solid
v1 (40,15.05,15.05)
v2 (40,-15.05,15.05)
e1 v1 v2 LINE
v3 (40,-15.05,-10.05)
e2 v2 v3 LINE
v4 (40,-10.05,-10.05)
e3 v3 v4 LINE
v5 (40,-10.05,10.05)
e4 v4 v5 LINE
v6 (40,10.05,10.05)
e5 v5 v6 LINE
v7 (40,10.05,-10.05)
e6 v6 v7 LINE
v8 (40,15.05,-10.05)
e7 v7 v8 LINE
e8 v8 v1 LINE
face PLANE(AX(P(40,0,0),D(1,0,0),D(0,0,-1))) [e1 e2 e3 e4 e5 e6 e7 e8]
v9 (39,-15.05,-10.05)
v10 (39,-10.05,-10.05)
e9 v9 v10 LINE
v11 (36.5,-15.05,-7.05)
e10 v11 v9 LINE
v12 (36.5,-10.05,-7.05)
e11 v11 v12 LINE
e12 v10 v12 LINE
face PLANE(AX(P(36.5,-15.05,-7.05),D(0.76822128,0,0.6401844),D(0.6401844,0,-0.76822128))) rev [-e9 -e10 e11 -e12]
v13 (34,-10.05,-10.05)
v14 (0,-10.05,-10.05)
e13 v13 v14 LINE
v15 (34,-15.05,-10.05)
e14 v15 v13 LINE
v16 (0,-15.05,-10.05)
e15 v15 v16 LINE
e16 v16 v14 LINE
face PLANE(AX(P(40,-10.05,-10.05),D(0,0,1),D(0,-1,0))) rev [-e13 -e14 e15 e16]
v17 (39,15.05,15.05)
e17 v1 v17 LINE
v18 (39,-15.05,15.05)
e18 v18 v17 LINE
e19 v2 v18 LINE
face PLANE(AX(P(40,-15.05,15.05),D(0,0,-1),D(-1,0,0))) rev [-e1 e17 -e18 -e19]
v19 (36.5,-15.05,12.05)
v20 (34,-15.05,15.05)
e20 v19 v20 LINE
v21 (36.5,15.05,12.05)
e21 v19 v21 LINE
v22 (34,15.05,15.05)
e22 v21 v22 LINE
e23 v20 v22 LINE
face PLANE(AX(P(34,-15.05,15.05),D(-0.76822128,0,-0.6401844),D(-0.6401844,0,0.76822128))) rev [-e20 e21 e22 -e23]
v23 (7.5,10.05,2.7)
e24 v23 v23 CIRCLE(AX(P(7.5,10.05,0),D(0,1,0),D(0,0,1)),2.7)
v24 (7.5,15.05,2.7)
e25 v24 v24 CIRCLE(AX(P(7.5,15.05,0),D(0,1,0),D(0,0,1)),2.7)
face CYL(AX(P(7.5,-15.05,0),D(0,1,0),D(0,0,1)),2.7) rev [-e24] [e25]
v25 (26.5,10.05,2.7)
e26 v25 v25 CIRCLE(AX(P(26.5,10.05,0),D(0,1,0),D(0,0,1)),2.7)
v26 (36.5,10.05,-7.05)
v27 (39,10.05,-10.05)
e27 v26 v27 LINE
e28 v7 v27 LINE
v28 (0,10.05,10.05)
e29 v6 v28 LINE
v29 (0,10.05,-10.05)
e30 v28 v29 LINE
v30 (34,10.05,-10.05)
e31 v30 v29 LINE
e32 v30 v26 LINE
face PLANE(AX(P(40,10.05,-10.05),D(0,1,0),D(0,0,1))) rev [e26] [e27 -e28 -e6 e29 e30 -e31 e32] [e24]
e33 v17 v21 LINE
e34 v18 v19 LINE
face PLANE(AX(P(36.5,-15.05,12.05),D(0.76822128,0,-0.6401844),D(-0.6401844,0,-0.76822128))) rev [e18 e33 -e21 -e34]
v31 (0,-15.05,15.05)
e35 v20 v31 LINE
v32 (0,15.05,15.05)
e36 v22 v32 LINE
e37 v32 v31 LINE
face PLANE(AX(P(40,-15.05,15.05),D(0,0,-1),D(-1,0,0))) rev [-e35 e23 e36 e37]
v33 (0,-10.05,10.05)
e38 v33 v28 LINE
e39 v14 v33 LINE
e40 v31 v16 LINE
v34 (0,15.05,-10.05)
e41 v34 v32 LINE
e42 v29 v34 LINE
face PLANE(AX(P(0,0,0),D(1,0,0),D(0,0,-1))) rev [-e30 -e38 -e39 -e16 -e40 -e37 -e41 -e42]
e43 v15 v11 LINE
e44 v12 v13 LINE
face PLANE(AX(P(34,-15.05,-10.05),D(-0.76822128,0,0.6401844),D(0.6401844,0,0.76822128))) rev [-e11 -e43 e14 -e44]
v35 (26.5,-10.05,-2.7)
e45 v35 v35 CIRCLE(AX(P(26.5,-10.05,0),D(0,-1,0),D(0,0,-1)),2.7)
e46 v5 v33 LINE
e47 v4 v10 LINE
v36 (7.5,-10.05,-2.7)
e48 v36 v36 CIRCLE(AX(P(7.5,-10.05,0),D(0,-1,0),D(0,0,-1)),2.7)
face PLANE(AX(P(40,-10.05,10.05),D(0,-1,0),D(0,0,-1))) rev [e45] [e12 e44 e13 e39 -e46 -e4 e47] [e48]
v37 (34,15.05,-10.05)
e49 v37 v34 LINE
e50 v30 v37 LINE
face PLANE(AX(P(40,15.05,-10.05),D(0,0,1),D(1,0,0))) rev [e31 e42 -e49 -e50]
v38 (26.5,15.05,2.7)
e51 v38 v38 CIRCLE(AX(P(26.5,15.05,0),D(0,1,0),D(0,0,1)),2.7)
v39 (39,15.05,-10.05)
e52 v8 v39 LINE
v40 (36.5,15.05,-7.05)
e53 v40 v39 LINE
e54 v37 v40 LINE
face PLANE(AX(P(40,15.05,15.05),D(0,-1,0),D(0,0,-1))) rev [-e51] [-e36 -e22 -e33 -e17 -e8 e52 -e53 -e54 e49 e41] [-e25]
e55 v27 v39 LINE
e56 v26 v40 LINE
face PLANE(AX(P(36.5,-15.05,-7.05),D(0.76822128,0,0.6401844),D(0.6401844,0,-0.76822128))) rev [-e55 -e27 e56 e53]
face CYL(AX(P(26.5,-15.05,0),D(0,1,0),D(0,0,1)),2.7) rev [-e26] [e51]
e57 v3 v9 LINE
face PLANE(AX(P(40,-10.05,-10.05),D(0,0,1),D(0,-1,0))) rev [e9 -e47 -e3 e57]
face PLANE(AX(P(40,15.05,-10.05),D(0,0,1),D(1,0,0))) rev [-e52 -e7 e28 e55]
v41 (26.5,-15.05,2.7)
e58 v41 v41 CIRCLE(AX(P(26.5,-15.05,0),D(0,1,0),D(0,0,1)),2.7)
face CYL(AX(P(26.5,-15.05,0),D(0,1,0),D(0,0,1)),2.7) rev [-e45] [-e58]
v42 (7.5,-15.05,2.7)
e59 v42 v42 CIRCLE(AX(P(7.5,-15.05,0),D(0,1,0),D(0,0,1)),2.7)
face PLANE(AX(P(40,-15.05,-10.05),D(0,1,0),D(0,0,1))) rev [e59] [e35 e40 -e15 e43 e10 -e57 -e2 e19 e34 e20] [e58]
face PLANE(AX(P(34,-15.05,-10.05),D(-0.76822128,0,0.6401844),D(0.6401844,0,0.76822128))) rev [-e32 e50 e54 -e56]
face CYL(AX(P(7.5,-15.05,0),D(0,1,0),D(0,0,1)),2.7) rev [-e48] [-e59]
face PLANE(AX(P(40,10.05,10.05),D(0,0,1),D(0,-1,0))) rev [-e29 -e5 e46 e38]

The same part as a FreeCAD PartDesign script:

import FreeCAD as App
import Part
import Sketcher

V = App.Vector

doc = App.newDocument("Part")
body = doc.addObject("PartDesign::Body", "Body")

# Sketch on YZ plane
sketch1 = body.newObject("Sketcher::SketchObject", "Sketch")
sketch1.AttachmentSupport = (doc.getObject("YZ_Plane"), [""])
sketch1.MapMode = "FlatFace"
sketch1.addGeometry(Part.LineSegment(V(-15, -10, 0), V(-10, -10, 0)), False)
sketch1.addGeometry(Part.LineSegment(V(-10, -10, 0), V(-10, 10, 0)), False)
sketch1.addGeometry(Part.LineSegment(V(-10, 10, 0), V(10, 10, 0)), False)
sketch1.addGeometry(Part.LineSegment(V(10, 10, 0), V(10, -10, 0)), False)
sketch1.addGeometry(Part.LineSegment(V(10, -10, 0), V(15, -10, 0)), False)
sketch1.addGeometry(Part.LineSegment(V(15, -10, 0), V(15, 15, 0)), False)
sketch1.addGeometry(Part.LineSegment(V(15, 15, 0), V(-15, 15, 0)), False)
sketch1.addGeometry(Part.LineSegment(V(-15, 15, 0), V(-15, -10, 0)), False)
sketch1.addConstraint(Sketcher.Constraint("Coincident", 0, 2, 1, 1))
sketch1.addConstraint(Sketcher.Constraint("Coincident", 1, 2, 2, 1))
sketch1.addConstraint(Sketcher.Constraint("Coincident", 2, 2, 3, 1))
sketch1.addConstraint(Sketcher.Constraint("Coincident", 3, 2, 4, 1))
sketch1.addConstraint(Sketcher.Constraint("Coincident", 4, 2, 5, 1))
sketch1.addConstraint(Sketcher.Constraint("Coincident", 5, 2, 6, 1))
sketch1.addConstraint(Sketcher.Constraint("Coincident", 6, 2, 7, 1))
sketch1.addConstraint(Sketcher.Constraint("Coincident", 7, 2, 0, 1))
sketch1.addConstraint(Sketcher.Constraint("Horizontal", 0))
sketch1.addConstraint(Sketcher.Constraint("Vertical", 1))
sketch1.addConstraint(Sketcher.Constraint("Horizontal", 2))
sketch1.addConstraint(Sketcher.Constraint("Vertical", 3))
sketch1.addConstraint(Sketcher.Constraint("Horizontal", 4))
sketch1.addConstraint(Sketcher.Constraint("Vertical", 5))
sketch1.addConstraint(Sketcher.Constraint("Horizontal", 6))
sketch1.addConstraint(Sketcher.Constraint("Vertical", 7))
sketch1.addConstraint(Sketcher.Constraint("Symmetric", 0, 2, 2, 2, -1, 1))
sketch1.addConstraint(Sketcher.Constraint("Symmetric", 4, 2, 7, 2, -2))
sketch1.addConstraint(Sketcher.Constraint("Equal", 2, 1))
sketch1.addConstraint(Sketcher.Constraint("DistanceX", 0, 1, 0, 2, 5.0))
sketch1.addConstraint(Sketcher.Constraint("DistanceX", 2, 1, 2, 2, 20.1))
sketch1.addConstraint(Sketcher.Constraint("DistanceY", 5, 1, 5, 2, 25.1))
pad1 = body.newObject("PartDesign::Pad", "Pad")
pad1.Profile = sketch1
pad1.Length = 40

# Sketch on XZ plane
sketch2 = body.newObject("Sketcher::SketchObject", "Sketch001")
sketch2.AttachmentSupport = (doc.getObject("XZ_Plane"), [""])
sketch2.MapMode = "FlatFace"
sketch2.AttachmentOffset = App.Placement(V(0, 0, -15.05), App.Rotation())
sketch2.addGeometry(Part.Circle(V(7.5, 0, 0), V(0, 0, 1), 2.7), False)
sketch2.addGeometry(Part.Circle(V(26.5, 0, 0), V(0, 0, 1), 2.7), False)
sketch2.addGeometry(Part.LineSegment(V(36.5, 12.1, 0), V(34, 15.1, 0)), False)
sketch2.addGeometry(Part.LineSegment(V(34, 15.1, 0), V(39, 15.1, 0)), False)
sketch2.addGeometry(Part.LineSegment(V(39, 15.1, 0), V(36.5, 12.1, 0)), False)
sketch2.addGeometry(Part.LineSegment(V(36.5, -7, 0), V(39, -10.1, 0)), False)
sketch2.addGeometry(Part.LineSegment(V(39, -10.1, 0), V(34, -10.1, 0)), False)
sketch2.addGeometry(Part.LineSegment(V(34, -10.1, 0), V(36.5, -7, 0)), False)
sketch2.addConstraint(Sketcher.Constraint("Coincident", 2, 2, 3, 1))
sketch2.addConstraint(Sketcher.Constraint("Coincident", 3, 2, 4, 1))
sketch2.addConstraint(Sketcher.Constraint("Coincident", 4, 2, 2, 1))
sketch2.addConstraint(Sketcher.Constraint("Coincident", 5, 2, 6, 1))
sketch2.addConstraint(Sketcher.Constraint("Coincident", 6, 2, 7, 1))
sketch2.addConstraint(Sketcher.Constraint("Coincident", 7, 2, 5, 1))
sketch2.addConstraint(Sketcher.Constraint("Horizontal", 3))
sketch2.addConstraint(Sketcher.Constraint("Horizontal", 6))
sketch2.addConstraint(Sketcher.Constraint("Equal", 0, 1))
sketch2.addConstraint(Sketcher.Constraint("PointOnObject", 0, 3, -1))
sketch2.addConstraint(Sketcher.Constraint("PointOnObject", 1, 3, -1))
sketch2.addConstraint(Sketcher.Constraint("Parallel", 2, 5))
sketch2.addConstraint(Sketcher.Constraint("Parallel", 4, 7))
sketch2.addConstraint(Sketcher.Constraint("Vertical", 3, 2, 5, 2))
sketch2.addConstraint(Sketcher.Constraint("Vertical", 2, 2, 6, 2))
sketch2.addConstraint(Sketcher.Constraint("Vertical", 4, 2, 7, 2))
sketch2.addConstraint(Sketcher.Constraint("Diameter", 0, 5.4))
sketch2.addConstraint(Sketcher.Constraint("DistanceX", 3, 1, 3, 2, 5.0))
sketch2.addConstraint(Sketcher.Constraint("DistanceX", -1, 1, 2, 2, 34.0))
sketch2.addConstraint(Sketcher.Constraint("DistanceX", 0, 3, 1, 3, 19.0))
sketch2.addConstraint(Sketcher.Constraint("DistanceY", 4, 2, 2, 2, 3.0))
sketch2.addConstraint(Sketcher.Constraint("DistanceX", 1, 3, 4, 2, 10.0))
sketch2.addConstraint(Sketcher.Constraint("DistanceY", 5, 2, 4, 2, 22.1))
sketch2.addConstraint(Sketcher.Constraint("DistanceY", -1, 1, 2, 2, 15.05))
pocket1 = body.newObject("PartDesign::Pocket", "Pocket")
pocket1.Profile = sketch2
pocket1.Type = "ThroughAll"
pocket1.Reversed = True

doc.recompute()
